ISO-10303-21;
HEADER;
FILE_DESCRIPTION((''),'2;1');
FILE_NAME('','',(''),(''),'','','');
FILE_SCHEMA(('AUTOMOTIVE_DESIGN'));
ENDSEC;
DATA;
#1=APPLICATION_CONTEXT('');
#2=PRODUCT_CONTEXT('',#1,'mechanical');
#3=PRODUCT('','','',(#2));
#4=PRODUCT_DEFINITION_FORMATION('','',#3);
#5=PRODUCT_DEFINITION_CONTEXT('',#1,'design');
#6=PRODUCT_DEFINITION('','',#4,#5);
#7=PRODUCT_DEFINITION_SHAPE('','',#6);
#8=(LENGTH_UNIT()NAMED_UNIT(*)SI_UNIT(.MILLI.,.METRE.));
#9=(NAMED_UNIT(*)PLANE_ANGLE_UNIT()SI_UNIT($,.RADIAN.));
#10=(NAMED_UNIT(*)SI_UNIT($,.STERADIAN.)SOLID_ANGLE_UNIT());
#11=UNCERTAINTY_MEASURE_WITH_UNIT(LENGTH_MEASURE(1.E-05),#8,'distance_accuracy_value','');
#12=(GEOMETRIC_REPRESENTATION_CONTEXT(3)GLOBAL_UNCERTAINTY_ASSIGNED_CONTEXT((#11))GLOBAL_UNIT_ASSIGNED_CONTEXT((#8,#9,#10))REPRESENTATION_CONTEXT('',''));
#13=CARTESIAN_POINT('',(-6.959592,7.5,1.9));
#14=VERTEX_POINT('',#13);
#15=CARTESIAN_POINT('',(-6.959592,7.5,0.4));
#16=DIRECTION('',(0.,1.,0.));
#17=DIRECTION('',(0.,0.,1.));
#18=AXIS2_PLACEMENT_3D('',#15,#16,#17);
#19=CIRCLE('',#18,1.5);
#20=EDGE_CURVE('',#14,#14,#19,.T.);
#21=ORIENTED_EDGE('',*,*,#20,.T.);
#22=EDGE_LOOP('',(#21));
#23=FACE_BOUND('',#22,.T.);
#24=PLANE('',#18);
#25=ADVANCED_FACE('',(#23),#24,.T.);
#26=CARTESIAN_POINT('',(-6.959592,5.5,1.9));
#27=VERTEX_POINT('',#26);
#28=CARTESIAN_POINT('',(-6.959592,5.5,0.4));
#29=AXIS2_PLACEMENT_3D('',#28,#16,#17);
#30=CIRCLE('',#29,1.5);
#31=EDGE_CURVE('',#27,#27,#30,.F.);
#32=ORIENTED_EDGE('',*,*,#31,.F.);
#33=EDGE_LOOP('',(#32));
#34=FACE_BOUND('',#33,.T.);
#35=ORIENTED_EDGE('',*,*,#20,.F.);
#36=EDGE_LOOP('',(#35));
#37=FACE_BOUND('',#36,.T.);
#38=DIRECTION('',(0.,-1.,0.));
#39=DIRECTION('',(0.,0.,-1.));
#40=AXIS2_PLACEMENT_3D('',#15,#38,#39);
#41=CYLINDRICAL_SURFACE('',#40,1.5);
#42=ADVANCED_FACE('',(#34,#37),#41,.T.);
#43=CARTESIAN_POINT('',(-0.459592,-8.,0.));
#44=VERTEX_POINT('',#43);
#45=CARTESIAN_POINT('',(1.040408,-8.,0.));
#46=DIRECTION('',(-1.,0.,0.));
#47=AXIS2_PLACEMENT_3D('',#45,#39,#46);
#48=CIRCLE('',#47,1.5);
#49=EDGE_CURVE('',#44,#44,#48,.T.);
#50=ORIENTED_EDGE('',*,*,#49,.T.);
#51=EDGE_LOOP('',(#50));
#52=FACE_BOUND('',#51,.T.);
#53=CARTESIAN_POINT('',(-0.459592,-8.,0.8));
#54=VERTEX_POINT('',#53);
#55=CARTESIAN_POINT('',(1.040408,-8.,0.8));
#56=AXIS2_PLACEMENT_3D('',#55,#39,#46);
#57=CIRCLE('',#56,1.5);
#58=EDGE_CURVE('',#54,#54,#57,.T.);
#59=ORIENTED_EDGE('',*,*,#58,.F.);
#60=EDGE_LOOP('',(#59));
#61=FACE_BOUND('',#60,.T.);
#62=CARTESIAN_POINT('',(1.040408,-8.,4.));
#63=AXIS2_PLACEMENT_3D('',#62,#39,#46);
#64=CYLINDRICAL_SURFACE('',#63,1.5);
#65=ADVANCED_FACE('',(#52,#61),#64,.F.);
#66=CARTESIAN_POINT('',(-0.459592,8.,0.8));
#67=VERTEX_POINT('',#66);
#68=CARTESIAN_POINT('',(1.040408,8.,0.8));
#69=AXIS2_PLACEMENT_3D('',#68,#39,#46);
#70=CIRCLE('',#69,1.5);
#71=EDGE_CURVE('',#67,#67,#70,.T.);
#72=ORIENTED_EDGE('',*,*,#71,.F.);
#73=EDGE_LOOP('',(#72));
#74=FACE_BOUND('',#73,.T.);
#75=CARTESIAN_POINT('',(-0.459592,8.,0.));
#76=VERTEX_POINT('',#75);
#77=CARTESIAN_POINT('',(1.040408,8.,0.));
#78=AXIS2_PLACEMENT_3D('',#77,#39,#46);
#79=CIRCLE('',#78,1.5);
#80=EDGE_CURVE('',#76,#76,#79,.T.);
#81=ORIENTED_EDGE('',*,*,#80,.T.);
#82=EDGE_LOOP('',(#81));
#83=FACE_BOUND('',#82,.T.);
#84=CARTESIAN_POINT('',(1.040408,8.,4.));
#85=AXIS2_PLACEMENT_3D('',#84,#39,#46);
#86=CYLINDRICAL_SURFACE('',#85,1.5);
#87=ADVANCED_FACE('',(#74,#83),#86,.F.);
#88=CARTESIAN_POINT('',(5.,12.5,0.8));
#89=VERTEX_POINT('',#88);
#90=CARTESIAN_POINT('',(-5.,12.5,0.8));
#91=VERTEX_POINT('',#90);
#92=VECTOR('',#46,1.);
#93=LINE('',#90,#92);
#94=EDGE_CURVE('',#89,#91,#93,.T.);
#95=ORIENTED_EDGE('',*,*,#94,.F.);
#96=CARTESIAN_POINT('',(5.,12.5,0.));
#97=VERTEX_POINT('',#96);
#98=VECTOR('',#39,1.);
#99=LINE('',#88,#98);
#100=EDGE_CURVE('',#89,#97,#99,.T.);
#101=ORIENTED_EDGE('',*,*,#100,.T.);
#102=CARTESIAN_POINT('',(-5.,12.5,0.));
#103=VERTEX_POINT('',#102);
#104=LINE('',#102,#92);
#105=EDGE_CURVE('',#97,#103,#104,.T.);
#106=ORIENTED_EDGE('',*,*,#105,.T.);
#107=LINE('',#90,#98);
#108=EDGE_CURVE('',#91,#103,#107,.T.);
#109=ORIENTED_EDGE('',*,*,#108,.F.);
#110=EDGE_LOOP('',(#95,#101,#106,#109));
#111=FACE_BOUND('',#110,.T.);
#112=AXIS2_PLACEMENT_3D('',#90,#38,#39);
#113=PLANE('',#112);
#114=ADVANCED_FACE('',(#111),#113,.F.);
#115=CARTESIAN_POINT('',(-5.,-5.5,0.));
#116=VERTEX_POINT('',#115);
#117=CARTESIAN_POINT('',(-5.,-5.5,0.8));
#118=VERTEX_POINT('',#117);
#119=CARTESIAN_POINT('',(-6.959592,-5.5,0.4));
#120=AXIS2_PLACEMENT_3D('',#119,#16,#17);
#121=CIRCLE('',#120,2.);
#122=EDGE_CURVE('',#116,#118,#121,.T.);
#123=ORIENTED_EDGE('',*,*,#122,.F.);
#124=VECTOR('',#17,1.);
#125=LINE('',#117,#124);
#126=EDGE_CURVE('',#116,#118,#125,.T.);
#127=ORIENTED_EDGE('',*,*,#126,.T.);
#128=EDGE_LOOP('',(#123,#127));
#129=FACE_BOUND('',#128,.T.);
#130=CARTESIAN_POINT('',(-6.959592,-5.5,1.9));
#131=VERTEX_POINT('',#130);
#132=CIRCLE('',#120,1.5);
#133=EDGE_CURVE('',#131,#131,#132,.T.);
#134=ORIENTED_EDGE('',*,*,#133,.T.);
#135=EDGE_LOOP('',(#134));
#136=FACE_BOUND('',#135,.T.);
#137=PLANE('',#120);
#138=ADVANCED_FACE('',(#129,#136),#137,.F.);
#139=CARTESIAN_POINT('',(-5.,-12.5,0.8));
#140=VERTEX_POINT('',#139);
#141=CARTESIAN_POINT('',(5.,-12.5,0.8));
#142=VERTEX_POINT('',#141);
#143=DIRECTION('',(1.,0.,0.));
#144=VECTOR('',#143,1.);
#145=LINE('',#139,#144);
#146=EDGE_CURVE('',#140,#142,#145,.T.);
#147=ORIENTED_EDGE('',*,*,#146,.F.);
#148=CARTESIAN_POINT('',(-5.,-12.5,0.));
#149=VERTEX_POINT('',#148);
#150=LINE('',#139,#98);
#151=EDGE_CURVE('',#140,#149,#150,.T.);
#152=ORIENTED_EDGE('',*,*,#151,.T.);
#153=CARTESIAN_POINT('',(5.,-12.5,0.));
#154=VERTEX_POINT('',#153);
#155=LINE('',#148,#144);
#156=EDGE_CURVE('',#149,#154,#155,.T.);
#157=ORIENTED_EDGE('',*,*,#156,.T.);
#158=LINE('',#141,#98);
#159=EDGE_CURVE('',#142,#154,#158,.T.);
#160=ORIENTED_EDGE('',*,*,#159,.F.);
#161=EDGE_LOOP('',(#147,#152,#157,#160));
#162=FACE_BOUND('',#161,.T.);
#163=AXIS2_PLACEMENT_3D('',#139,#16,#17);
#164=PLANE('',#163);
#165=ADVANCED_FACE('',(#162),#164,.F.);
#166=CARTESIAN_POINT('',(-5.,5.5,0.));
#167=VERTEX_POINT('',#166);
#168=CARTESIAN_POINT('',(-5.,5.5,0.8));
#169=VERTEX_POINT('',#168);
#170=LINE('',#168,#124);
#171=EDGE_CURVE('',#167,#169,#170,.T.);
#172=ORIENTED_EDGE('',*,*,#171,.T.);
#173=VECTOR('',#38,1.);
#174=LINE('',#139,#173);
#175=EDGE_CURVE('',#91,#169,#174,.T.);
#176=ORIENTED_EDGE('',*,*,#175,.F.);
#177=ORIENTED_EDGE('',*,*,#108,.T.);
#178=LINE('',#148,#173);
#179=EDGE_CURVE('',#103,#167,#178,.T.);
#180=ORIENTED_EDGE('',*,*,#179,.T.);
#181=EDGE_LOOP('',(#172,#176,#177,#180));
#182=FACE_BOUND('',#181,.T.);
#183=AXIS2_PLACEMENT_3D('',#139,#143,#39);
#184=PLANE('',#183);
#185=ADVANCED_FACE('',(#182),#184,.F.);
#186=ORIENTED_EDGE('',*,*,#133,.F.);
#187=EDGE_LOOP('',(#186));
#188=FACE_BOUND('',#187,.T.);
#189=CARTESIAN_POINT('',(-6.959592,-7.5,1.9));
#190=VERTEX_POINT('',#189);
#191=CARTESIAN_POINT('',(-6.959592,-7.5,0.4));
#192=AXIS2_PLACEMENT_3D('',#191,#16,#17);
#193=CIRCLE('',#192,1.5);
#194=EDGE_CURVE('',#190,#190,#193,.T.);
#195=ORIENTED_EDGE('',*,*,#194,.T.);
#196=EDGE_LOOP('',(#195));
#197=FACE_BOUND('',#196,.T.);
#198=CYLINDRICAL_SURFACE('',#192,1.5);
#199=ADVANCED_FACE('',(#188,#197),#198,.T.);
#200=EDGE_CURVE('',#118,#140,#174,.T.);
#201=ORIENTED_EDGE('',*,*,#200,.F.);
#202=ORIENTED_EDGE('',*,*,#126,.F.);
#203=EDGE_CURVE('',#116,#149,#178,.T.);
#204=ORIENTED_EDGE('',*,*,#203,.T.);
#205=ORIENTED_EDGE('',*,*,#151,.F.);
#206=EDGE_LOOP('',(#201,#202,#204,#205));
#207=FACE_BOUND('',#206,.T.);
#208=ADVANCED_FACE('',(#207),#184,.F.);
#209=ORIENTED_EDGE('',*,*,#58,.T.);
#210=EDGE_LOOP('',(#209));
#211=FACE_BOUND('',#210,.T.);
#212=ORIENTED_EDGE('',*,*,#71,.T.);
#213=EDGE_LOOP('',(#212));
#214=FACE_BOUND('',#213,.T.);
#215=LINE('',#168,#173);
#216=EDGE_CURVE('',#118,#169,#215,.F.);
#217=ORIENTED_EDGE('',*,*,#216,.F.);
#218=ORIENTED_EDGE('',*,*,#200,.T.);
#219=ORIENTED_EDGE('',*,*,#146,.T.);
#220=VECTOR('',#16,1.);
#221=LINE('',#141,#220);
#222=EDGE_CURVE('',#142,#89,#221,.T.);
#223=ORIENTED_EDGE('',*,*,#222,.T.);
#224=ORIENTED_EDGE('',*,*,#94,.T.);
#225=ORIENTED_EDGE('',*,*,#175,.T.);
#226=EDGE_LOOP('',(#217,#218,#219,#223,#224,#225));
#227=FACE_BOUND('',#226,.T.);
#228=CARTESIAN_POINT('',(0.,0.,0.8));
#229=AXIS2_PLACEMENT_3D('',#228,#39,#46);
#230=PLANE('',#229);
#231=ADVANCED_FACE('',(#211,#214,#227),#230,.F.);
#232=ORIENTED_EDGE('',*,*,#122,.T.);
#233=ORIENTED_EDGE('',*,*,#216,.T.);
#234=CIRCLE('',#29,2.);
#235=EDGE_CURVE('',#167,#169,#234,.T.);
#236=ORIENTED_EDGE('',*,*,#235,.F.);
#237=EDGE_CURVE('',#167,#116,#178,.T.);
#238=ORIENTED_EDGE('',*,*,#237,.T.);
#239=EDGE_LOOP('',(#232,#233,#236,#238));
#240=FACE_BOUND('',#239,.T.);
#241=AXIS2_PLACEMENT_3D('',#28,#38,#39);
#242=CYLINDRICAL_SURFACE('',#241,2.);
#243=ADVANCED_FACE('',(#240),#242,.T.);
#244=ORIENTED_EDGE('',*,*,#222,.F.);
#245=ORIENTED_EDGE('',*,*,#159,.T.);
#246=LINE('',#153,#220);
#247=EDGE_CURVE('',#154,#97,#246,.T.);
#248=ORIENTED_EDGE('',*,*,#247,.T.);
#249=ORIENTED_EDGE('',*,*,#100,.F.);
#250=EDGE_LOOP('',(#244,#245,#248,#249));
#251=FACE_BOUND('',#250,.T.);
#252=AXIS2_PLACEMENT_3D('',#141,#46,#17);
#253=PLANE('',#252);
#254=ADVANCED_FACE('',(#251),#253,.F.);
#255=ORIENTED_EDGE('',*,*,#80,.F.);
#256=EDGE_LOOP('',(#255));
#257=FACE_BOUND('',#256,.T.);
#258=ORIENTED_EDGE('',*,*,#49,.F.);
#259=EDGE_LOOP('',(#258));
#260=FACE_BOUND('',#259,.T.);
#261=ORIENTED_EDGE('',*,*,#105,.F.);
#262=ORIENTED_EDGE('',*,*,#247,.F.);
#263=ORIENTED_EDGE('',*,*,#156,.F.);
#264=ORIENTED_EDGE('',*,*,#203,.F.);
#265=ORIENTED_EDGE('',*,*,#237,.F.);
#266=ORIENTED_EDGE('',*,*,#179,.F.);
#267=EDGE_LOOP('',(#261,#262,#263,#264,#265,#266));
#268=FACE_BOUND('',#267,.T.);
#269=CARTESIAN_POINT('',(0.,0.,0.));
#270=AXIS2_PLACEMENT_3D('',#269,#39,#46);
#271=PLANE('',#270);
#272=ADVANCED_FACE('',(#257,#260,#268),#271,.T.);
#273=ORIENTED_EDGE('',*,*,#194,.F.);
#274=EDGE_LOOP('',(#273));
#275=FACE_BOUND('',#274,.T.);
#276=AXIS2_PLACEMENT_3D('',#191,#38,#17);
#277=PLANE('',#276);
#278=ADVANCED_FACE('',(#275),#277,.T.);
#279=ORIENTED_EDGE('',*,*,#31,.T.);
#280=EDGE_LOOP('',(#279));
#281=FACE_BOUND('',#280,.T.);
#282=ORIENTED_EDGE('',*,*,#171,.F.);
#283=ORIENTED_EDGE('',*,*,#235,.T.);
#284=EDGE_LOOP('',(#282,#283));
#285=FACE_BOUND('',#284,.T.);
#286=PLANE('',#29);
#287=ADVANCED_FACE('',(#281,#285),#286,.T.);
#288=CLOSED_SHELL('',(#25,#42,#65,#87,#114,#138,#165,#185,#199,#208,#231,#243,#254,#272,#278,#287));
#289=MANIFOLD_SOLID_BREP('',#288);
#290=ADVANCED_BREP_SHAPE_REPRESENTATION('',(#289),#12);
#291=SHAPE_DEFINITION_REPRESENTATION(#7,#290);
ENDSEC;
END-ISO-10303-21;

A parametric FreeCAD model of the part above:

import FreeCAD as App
import Part
import Sketcher

doc = App.newDocument("Part")
body = doc.addObject("PartDesign::Body", "Body")

sketch1 = doc.addObject("Sketcher::SketchObject", "Sketch")
body.addObject(sketch1)
sketch1.AttachmentSupport = (doc.XY_Plane, [""])
sketch1.MapMode = "FlatFace"
sketch1.addGeometry([
    Part.LineSegment(App.Vector(-5, 12.5, 0), App.Vector(-5, -12.5, 0)),
    Part.LineSegment(App.Vector(-5, -12.5, 0), App.Vector(5, -12.5, 0)),
    Part.LineSegment(App.Vector(5, -12.5, 0), App.Vector(5, 12.5, 0)),
    Part.LineSegment(App.Vector(5, 12.5, 0), App.Vector(-5, 12.5, 0)),
], False)
sketch1.addConstraint([
    Sketcher.Constraint("Coincident", 0, 2, 1, 1),
    Sketcher.Constraint("Coincident", 1, 2, 2, 1),
    Sketcher.Constraint("Coincident", 2, 2, 3, 1),
    Sketcher.Constraint("Coincident", 3, 2, 0, 1),
    Sketcher.Constraint("Vertical", 0),
    Sketcher.Constraint("Horizontal", 1),
    Sketcher.Constraint("Vertical", 2),
    Sketcher.Constraint("Horizontal", 3),
    Sketcher.Constraint("Symmetric", 0, 2, 2, 2, -1, 1),
    Sketcher.Constraint("DistanceX", 1, 1, 1, 2, 10.0),
    Sketcher.Constraint("DistanceY", 0, 2, 0, 1, 25.0),
])
pad1 = doc.addObject("PartDesign::Pad", "Pad")
body.addObject(pad1)
pad1.Profile = sketch1
pad1.Length = 0.8

sketch2 = doc.addObject("Sketcher::SketchObject", "Sketch001")
body.addObject(sketch2)
sketch2.AttachmentSupport = (doc.XZ_Plane, [""])
sketch2.MapMode = "FlatFace"
sketch2.addGeometry(Part.Circle(App.Vector(-6.959592, 0.4, 0), App.Vector(0, 0, 1), 2), False)
sketch2.addConstraint([
    Sketcher.Constraint("Diameter", 0, 4.0),
    Sketcher.Constraint("DistanceY", -1, 1, 0, 3, 0.4),
    Sketcher.Constraint("DistanceX", 0, 3, -1, 1, 6.959592),
])
pad2 = doc.addObject("PartDesign::Pad", "Pad001")
body.addObject(pad2)
pad2.Profile = sketch2
pad2.Length = 11
pad2.Midplane = True

sketch3 = doc.addObject("Sketcher::SketchObject", "Sketch002")
body.addObject(sketch3)
sketch3.AttachmentSupport = (doc.XZ_Plane, [""])
sketch3.MapMode = "FlatFace"
sketch3.AttachmentOffset = App.Placement(App.Vector(0, 0, -5.5), App.Rotation())
sketch3.addGeometry(Part.Circle(App.Vector(-6.959592, 0.4, 0), App.Vector(0, 0, 1), 1.5), False)
sketch3.addConstraint([
    Sketcher.Constraint("Diameter", 0, 3.0),
    Sketcher.Constraint("DistanceY", -1, 1, 0, 3, 0.4),
    Sketcher.Constraint("DistanceX", 0, 3, -1, 1, 6.959592),
])
pad3 = doc.addObject("PartDesign::Pad", "Pad002")
body.addObject(pad3)
pad3.Profile = sketch3
pad3.Length = 4
pad3.Midplane = True
doc.recompute()

mirrored = doc.addObject("PartDesign::Mirrored", "Mirrored")
body.addObject(mirrored)
mirrored.Originals = [pad3]
mirrored.MirrorPlane = (doc.XZ_Plane, [""])
body.Tip = mirrored

sketch4 = doc.addObject("Sketcher::SketchObject", "Sketch003")
body.addObject(sketch4)
sketch4.AttachmentSupport = (doc.XY_Plane, [""])
sketch4.MapMode = "FlatFace"
sketch4.addGeometry([
    Part.Circle(App.Vector(1.040408, 8, 0), App.Vector(0, 0, 1), 1.5),
    Part.Circle(App.Vector(1.040408, -8, 0), App.Vector(0, 0, 1), 1.5),
], False)
sketch4.addConstraint([
    Sketcher.Constraint("Equal", 0, 1),
    Sketcher.Constraint("Symmetric", 0, 3, 1, 3, -1),
    Sketcher.Constraint("Diameter", 0, 3.0),
    Sketcher.Constraint("DistanceY", -1, 1, 0, 3, 8.0),
    Sketcher.Constraint("DistanceX", -1, 1, 0, 3, 1.040408),
])
pocket1 = doc.addObject("PartDesign::Pocket", "Pocket")
body.addObject(pocket1)
pocket1.Profile = sketch4
pocket1.Length = 4
pocket1.Reversed = True

doc.recompute()
